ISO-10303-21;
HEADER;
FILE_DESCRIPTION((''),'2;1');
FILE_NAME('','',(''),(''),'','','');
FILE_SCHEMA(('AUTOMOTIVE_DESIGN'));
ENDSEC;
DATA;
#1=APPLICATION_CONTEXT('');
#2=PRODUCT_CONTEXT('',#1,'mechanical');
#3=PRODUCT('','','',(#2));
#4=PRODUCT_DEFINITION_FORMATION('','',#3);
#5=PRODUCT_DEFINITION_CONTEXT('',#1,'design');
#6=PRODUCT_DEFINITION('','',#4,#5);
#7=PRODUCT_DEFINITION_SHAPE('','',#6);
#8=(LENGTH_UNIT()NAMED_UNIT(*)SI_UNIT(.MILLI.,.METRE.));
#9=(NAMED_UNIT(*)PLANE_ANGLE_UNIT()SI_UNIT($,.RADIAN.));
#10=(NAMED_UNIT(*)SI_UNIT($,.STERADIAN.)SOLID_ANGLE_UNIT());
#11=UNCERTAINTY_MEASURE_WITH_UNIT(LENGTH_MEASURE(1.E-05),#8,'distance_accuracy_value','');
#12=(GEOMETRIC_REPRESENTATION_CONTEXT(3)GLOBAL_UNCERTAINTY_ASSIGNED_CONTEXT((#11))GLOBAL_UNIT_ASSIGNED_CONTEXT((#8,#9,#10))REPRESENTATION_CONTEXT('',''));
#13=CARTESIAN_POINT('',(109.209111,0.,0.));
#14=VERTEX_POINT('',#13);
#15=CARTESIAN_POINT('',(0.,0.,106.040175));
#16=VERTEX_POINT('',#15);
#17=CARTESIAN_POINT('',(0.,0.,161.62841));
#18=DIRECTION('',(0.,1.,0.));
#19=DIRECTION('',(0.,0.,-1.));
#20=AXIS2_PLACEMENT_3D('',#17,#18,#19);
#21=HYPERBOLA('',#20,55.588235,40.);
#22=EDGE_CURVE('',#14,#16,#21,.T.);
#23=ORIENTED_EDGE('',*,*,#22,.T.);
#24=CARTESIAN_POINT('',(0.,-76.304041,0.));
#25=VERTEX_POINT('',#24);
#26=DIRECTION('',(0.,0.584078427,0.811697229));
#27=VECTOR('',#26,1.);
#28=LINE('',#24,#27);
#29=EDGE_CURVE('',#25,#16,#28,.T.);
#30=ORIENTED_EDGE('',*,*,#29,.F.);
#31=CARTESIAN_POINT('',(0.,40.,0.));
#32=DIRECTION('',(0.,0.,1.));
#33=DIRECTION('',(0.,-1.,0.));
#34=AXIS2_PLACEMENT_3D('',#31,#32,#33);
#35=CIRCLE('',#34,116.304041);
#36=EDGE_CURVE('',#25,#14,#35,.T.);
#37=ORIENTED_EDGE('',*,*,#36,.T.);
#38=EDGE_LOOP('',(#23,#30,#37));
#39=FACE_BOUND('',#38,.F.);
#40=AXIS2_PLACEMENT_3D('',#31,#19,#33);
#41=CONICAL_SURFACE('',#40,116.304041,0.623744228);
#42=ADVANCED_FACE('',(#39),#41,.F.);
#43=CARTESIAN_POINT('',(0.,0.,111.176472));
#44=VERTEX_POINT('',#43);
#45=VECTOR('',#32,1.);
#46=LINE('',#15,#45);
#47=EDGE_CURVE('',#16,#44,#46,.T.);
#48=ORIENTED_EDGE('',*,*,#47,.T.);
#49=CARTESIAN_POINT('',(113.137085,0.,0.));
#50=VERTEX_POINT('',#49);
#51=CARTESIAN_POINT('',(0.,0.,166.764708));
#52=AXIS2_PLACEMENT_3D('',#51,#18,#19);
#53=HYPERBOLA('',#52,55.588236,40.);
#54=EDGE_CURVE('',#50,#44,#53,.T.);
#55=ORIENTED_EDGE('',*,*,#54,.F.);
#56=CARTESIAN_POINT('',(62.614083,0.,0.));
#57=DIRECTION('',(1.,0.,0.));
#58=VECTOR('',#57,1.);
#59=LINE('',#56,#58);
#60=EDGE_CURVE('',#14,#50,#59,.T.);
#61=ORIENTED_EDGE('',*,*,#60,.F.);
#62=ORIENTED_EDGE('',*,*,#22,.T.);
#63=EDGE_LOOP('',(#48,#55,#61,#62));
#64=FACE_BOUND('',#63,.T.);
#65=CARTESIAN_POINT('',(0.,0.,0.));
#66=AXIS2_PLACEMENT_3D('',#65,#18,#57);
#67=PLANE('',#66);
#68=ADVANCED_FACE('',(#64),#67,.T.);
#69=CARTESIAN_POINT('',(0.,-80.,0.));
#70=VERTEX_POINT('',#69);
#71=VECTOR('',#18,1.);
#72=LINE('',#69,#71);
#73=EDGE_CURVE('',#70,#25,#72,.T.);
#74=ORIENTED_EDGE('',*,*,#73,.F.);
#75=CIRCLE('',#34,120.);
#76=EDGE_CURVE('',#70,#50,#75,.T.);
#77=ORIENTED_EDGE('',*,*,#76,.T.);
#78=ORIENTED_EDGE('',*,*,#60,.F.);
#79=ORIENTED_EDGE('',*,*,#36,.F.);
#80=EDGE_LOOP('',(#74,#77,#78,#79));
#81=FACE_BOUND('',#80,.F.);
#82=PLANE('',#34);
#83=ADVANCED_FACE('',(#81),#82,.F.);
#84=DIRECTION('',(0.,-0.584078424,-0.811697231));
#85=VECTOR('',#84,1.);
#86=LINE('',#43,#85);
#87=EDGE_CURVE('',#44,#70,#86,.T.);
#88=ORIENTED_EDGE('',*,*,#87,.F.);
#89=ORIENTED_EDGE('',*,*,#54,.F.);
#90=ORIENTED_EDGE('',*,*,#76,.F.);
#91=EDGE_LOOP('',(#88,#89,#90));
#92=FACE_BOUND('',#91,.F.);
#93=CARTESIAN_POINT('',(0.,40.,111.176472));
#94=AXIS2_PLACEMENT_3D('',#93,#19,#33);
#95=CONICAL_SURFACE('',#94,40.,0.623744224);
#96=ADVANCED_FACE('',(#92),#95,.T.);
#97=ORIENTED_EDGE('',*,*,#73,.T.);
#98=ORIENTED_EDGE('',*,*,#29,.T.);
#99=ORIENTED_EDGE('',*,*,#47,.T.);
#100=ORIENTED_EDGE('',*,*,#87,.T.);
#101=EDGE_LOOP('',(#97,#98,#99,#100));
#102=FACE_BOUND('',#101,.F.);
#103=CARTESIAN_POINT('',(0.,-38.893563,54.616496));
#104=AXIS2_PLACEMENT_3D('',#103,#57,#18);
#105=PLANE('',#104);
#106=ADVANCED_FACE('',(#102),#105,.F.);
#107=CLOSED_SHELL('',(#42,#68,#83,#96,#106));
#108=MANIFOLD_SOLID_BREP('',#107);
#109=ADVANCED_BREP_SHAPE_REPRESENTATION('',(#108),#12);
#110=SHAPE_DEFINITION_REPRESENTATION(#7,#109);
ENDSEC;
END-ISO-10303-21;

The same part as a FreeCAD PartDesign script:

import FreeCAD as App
import Part
import Sketcher
from FreeCAD import Vector

doc = App.newDocument("Part")
body = doc.addObject("PartDesign::Body", "Body")

# Sketch on YZ plane
sketch1 = body.newObject("Sketcher::SketchObject", "Sketch")
sketch1.AttachmentSupport = (doc.getObject("YZ_Plane"), [""])
sketch1.MapMode = "FlatFace"
sketch1.addGeometry([
    Part.LineSegment(Vector(0, 106.040175, 0), Vector(0, 111.176472, 0)),
    Part.LineSegment(Vector(0, 111.176472, 0), Vector(-80, 0, 0)),
    Part.LineSegment(Vector(-80, 0, 0), Vector(-76.304041, 0, 0)),
    Part.LineSegment(Vector(-76.304041, 0, 0), Vector(0, 106.040175, 0)),
], False)
sketch1.addGeometry(Part.LineSegment(Vector(40, 0, 0), Vector(40, 111.176472, 0)), True)  # axis
sketch1.addConstraint([
    Sketcher.Constraint("Coincident", 0, 2, 1, 1),
    Sketcher.Constraint("Coincident", 1, 2, 2, 1),
    Sketcher.Constraint("Coincident", 2, 2, 3, 1),
    Sketcher.Constraint("Coincident", 3, 2, 0, 1),
    Sketcher.Constraint("Vertical", 0),
    Sketcher.Constraint("Horizontal", 2),
    Sketcher.Constraint("Vertical", 4),
    Sketcher.Constraint("PointOnObject", 0, 2, -2),
    Sketcher.Constraint("PointOnObject", 1, 2, -1),
    Sketcher.Constraint("PointOnObject", 4, 1, -1),
    Sketcher.Constraint("Parallel", 1, 3),
    Sketcher.Constraint("Horizontal", 0, 2, 4, 2),
    Sketcher.Constraint("DistanceX", 1, 2, -1, 1, 80.0),
    Sketcher.Constraint("DistanceX", -1, 1, 4, 1, 40.0),
    Sketcher.Constraint("DistanceX", 2, 1, 2, 2, 3.695959),
    Sketcher.Constraint("Distance", 1, 136.967908),
])
revolution = body.newObject("PartDesign::Revolution", "Revolution")
revolution.Profile = sketch1
revolution.ReferenceAxis = (sketch1, ["Axis0"])
revolution.Angle = 100

# Sketch on XY plane
sketch2 = body.newObject("Sketcher::SketchObject", "Sketch001")
sketch2.AttachmentSupport = (doc.getObject("XY_Plane"), [""])
sketch2.MapMode = "FlatFace"
sketch2.addGeometry([
    Part.LineSegment(Vector(0, 72.214484, 0), Vector(0, 0, 0)),
    Part.LineSegment(Vector(0, 0, 0), Vector(125.228167, 0, 0)),
    Part.LineSegment(Vector(125.228167, 0, 0), Vector(125.228167, 72.214484, 0)),
    Part.LineSegment(Vector(125.228167, 72.214484, 0), Vector(0, 72.214484, 0)),
], False)
sketch2.addConstraint([
    Sketcher.Constraint("Coincident", 0, 2, 1, 1),
    Sketcher.Constraint("Coincident", 1, 2, 2, 1),
    Sketcher.Constraint("Coincident", 2, 2, 3, 1),
    Sketcher.Constraint("Coincident", 3, 2, 0, 1),
    Sketcher.Constraint("Vertical", 0),
    Sketcher.Constraint("Horizontal", 1),
    Sketcher.Constraint("Vertical", 2),
    Sketcher.Constraint("Horizontal", 3),
    Sketcher.Constraint("Coincident", 0, 2, -1, 1),
    Sketcher.Constraint("DistanceX", 1, 1, 1, 2, 125.228167),
    Sketcher.Constraint("DistanceY", 0, 2, 0, 1, 72.214484),
])
pocket1 = body.newObject("PartDesign::Pocket", "Pocket")
pocket1.Profile = sketch2
pocket1.Length = 200
pocket1.Reversed = True

doc.recompute()
